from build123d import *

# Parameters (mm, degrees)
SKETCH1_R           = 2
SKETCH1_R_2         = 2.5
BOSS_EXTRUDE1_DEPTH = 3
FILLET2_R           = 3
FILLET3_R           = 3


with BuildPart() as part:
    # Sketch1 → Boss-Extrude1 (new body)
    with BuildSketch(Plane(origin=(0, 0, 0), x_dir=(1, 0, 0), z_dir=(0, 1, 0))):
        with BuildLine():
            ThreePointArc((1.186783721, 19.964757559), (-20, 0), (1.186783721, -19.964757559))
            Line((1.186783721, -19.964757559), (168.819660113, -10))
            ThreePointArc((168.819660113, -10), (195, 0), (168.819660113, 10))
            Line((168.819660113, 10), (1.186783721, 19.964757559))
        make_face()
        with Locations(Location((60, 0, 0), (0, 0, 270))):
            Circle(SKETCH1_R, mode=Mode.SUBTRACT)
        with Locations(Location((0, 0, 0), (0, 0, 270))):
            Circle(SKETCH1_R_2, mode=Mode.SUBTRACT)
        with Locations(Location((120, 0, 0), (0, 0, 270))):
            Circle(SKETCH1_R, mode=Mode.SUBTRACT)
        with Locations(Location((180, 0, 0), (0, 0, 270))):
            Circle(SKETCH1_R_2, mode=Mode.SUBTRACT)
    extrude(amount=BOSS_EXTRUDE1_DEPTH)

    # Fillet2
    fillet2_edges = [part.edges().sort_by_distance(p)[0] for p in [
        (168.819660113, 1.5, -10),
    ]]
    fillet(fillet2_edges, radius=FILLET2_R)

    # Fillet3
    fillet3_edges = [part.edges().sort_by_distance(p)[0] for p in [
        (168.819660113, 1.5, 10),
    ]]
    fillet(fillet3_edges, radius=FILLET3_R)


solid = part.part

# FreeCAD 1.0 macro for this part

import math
import FreeCAD as App
import Part
import Sketcher

V = App.Vector
Q = App.Units.Quantity


def edges_at(feature, points):
    """Names of the edges that pass closest to the given points."""
    edges = feature.Shape.Edges
    near = lambda p: min(range(len(edges)), key=lambda i: edges[i].distToShape(Part.Vertex(*p))[0])
    return sorted({f"Edge{near(p) + 1}" for p in points})

doc = App.newDocument("Part")
body = doc.addObject("PartDesign::Body", "Body")

# Sketch on XZ plane
sketch1 = doc.addObject("Sketcher::SketchObject", "Sketch")
body.addObject(sketch1)
sketch1.AttachmentSupport = (doc.XZ_Plane, [""])
sketch1.MapMode = "FlatFace"
sketch1.addGeometry(Part.ArcOfCircle(Part.Circle(V(0, 0, 0), V(0, 0, 1), 20), math.radians(87), math.radians(273)), False)
sketch1.addGeometry(Part.LineSegment(V(1.2, 20, 0), V(168.8, 10, 0)), False)
sketch1.addGeometry(Part.ArcOfCircle(Part.Circle(V(180, 0, 0), V(0, 0, 1), 15), math.radians(-138), math.radians(138)), False)
sketch1.addGeometry(Part.LineSegment(V(168.8, -10, 0), V(1.2, -20, 0)), False)
sketch1.addGeometry(Part.Circle(V(0, 0, 0), V(0, 0, 1), 2.5), False)
sketch1.addGeometry(Part.Circle(V(60, 0, 0), V(0, 0, 1), 2), False)
sketch1.addGeometry(Part.Circle(V(120, 0, 0), V(0, 0, 1), 2), False)
sketch1.addGeometry(Part.Circle(V(180, 0, 0), V(0, 0, 1), 2.5), False)
sketch1.addConstraint(Sketcher.Constraint("Tangent", 0, 1, 1, 1))
sketch1.addConstraint(Sketcher.Constraint("Coincident", 1, 2, 2, 2))
sketch1.addConstraint(Sketcher.Constraint("Coincident", 2, 1, 3, 1))
sketch1.addConstraint(Sketcher.Constraint("Tangent", 3, 2, 0, 2))
sketch1.addConstraint(Sketcher.Constraint("Coincident", 0, 3, -1, 1))
sketch1.addConstraint(Sketcher.Constraint("Coincident", 4, 3, -1, 1))
sketch1.addConstraint(Sketcher.Constraint("Coincident", 7, 3, 2, 3))
sketch1.addConstraint(Sketcher.Constraint("Equal", 5, 6))
sketch1.addConstraint(Sketcher.Constraint("Equal", 4, 7))
sketch1.addConstraint(Sketcher.Constraint("Symmetric", 1, 2, 2, 1, -1))
sketch1.addConstraint(Sketcher.Constraint("PointOnObject", 5, 3, -1))
sketch1.addConstraint(Sketcher.Constraint("PointOnObject", 6, 3, -1))
sketch1.addConstraint(Sketcher.Constraint("Diameter", 4, Q("5 mm")))
sketch1.addConstraint(Sketcher.Constraint("Diameter", 5, Q("4 mm")))
sketch1.addConstraint(Sketcher.Constraint("Radius", 0, Q("20 mm")))
sketch1.addConstraint(Sketcher.Constraint("Radius", 2, Q("15 mm")))
sketch1.addConstraint(Sketcher.Constraint("DistanceX", -1, 1, 2, 3, Q("180 mm")))
sketch1.addConstraint(Sketcher.Constraint("DistanceX", -1, 1, 5, 3, Q("60 mm")))
sketch1.addConstraint(Sketcher.Constraint("DistanceX", -1, 1, 6, 3, Q("120 mm")))
sketch1.addConstraint(Sketcher.Constraint("DistanceY", -1, 1, 1, 2, Q("10 mm")))
pad1 = doc.addObject("PartDesign::Pad", "Pad")
body.addObject(pad1)
pad1.Profile = sketch1
pad1.Length = 3
pad1.Reversed = True
doc.recompute()

fillet = doc.addObject("PartDesign::Fillet", "Fillet")
body.addObject(fillet)
fillet.Base = (pad1, edges_at(pad1, [(168.82, 1.5, -10)]))
fillet.Radius = 3
doc.recompute()

fillet2 = doc.addObject("PartDesign::Fillet", "Fillet001")
body.addObject(fillet2)
fillet2.Base = (fillet, edges_at(fillet, [(168.82, 1.5, 10)]))
fillet2.Radius = 3

doc.recompute()
